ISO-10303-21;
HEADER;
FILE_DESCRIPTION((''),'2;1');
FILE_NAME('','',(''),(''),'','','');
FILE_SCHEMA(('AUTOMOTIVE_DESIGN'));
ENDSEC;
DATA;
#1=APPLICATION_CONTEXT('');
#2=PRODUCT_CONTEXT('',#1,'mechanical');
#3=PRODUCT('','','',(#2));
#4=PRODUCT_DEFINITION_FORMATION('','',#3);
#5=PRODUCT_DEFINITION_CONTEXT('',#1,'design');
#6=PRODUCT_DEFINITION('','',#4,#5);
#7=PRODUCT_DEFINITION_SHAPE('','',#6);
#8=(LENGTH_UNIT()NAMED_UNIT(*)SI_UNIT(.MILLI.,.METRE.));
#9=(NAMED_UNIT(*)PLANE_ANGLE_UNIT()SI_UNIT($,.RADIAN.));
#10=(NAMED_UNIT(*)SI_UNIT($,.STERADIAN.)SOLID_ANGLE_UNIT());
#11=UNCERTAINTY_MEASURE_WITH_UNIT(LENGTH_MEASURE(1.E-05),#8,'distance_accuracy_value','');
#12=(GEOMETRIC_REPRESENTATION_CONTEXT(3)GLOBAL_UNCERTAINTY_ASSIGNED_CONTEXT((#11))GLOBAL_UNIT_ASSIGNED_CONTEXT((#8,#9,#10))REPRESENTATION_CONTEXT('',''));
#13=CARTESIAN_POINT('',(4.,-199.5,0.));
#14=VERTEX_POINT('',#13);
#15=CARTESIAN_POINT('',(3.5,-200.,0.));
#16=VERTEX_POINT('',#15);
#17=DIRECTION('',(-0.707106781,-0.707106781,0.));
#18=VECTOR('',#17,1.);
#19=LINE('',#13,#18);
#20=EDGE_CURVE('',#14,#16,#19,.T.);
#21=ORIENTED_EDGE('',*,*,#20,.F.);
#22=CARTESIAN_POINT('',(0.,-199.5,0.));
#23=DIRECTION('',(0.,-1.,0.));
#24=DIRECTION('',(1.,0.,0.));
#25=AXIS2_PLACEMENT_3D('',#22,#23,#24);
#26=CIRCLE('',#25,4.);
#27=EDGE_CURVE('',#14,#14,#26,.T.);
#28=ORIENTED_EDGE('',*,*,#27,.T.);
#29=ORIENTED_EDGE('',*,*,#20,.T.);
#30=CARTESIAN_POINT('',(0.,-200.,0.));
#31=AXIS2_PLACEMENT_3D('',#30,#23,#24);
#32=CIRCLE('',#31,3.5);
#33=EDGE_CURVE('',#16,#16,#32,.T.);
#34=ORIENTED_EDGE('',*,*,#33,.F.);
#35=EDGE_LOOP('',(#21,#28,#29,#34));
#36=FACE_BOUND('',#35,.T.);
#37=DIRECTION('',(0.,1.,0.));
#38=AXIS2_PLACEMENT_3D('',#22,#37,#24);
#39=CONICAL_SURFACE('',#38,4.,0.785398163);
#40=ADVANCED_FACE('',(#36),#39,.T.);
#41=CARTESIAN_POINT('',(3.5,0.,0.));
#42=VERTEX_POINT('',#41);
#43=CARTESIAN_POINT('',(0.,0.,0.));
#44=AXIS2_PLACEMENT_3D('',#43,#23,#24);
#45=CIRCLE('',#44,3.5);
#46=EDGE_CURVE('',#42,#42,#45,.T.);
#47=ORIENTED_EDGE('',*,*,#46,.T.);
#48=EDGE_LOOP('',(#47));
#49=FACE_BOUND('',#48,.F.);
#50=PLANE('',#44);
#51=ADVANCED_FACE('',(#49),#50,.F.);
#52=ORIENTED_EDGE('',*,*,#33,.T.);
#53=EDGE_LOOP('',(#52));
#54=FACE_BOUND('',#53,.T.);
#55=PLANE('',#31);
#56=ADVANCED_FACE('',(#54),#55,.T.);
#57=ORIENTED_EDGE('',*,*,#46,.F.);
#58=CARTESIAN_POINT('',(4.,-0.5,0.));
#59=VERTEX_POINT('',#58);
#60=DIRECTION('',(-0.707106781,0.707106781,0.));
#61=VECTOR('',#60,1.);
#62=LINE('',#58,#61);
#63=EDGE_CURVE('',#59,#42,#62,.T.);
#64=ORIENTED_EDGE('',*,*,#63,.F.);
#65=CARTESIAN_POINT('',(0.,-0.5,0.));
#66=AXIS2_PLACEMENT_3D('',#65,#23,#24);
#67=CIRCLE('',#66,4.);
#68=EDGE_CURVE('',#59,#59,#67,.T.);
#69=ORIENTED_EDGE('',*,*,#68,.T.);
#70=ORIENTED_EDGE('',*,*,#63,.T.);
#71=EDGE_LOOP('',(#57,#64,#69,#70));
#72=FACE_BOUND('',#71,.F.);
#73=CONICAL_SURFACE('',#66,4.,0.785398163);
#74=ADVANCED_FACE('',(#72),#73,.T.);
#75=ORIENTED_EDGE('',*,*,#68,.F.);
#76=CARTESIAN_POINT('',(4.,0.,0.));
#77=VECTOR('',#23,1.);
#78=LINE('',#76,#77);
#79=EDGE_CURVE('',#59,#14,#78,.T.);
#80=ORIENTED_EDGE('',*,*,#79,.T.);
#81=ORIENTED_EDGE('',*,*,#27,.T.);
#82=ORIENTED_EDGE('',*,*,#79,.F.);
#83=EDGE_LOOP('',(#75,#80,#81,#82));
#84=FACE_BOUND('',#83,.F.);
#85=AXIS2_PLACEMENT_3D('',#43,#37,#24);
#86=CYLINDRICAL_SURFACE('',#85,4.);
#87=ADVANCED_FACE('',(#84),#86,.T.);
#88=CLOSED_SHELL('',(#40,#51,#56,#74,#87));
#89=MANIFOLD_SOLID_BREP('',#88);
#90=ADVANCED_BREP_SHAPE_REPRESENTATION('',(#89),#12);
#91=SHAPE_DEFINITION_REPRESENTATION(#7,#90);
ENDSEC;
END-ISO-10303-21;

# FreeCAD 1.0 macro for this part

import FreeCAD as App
import Part
import Sketcher
from FreeCAD import Vector
Q = App.Units.Quantity

doc = App.newDocument("Part")
body = doc.addObject("PartDesign::Body", "Body")

# Sketch on XZ plane
sketch1 = body.newObject("Sketcher::SketchObject", "Sketch")
sketch1.AttachmentSupport = (doc.getObject("XZ_Plane"), [""])
sketch1.MapMode = "FlatFace"
sketch1.addGeometry(Part.Circle(Vector(0, 0, 0), Vector(0, 0, 1), 4), False)
sketch1.addConstraint([
    Sketcher.Constraint("Coincident", 0, 3, -1, 1),
    Sketcher.Constraint("Diameter", 0, Q("8 mm")),
])
pad1 = body.newObject("PartDesign::Pad", "Pad")
pad1.Profile = sketch1
pad1.Length = 200
doc.recompute()

chamfer = body.newObject("PartDesign::Chamfer", "Chamfer")
chamfer.Base = (pad1, ["Edge1"])
chamfer.UseAllEdges = True
chamfer.Size = 0.5

doc.recompute()
